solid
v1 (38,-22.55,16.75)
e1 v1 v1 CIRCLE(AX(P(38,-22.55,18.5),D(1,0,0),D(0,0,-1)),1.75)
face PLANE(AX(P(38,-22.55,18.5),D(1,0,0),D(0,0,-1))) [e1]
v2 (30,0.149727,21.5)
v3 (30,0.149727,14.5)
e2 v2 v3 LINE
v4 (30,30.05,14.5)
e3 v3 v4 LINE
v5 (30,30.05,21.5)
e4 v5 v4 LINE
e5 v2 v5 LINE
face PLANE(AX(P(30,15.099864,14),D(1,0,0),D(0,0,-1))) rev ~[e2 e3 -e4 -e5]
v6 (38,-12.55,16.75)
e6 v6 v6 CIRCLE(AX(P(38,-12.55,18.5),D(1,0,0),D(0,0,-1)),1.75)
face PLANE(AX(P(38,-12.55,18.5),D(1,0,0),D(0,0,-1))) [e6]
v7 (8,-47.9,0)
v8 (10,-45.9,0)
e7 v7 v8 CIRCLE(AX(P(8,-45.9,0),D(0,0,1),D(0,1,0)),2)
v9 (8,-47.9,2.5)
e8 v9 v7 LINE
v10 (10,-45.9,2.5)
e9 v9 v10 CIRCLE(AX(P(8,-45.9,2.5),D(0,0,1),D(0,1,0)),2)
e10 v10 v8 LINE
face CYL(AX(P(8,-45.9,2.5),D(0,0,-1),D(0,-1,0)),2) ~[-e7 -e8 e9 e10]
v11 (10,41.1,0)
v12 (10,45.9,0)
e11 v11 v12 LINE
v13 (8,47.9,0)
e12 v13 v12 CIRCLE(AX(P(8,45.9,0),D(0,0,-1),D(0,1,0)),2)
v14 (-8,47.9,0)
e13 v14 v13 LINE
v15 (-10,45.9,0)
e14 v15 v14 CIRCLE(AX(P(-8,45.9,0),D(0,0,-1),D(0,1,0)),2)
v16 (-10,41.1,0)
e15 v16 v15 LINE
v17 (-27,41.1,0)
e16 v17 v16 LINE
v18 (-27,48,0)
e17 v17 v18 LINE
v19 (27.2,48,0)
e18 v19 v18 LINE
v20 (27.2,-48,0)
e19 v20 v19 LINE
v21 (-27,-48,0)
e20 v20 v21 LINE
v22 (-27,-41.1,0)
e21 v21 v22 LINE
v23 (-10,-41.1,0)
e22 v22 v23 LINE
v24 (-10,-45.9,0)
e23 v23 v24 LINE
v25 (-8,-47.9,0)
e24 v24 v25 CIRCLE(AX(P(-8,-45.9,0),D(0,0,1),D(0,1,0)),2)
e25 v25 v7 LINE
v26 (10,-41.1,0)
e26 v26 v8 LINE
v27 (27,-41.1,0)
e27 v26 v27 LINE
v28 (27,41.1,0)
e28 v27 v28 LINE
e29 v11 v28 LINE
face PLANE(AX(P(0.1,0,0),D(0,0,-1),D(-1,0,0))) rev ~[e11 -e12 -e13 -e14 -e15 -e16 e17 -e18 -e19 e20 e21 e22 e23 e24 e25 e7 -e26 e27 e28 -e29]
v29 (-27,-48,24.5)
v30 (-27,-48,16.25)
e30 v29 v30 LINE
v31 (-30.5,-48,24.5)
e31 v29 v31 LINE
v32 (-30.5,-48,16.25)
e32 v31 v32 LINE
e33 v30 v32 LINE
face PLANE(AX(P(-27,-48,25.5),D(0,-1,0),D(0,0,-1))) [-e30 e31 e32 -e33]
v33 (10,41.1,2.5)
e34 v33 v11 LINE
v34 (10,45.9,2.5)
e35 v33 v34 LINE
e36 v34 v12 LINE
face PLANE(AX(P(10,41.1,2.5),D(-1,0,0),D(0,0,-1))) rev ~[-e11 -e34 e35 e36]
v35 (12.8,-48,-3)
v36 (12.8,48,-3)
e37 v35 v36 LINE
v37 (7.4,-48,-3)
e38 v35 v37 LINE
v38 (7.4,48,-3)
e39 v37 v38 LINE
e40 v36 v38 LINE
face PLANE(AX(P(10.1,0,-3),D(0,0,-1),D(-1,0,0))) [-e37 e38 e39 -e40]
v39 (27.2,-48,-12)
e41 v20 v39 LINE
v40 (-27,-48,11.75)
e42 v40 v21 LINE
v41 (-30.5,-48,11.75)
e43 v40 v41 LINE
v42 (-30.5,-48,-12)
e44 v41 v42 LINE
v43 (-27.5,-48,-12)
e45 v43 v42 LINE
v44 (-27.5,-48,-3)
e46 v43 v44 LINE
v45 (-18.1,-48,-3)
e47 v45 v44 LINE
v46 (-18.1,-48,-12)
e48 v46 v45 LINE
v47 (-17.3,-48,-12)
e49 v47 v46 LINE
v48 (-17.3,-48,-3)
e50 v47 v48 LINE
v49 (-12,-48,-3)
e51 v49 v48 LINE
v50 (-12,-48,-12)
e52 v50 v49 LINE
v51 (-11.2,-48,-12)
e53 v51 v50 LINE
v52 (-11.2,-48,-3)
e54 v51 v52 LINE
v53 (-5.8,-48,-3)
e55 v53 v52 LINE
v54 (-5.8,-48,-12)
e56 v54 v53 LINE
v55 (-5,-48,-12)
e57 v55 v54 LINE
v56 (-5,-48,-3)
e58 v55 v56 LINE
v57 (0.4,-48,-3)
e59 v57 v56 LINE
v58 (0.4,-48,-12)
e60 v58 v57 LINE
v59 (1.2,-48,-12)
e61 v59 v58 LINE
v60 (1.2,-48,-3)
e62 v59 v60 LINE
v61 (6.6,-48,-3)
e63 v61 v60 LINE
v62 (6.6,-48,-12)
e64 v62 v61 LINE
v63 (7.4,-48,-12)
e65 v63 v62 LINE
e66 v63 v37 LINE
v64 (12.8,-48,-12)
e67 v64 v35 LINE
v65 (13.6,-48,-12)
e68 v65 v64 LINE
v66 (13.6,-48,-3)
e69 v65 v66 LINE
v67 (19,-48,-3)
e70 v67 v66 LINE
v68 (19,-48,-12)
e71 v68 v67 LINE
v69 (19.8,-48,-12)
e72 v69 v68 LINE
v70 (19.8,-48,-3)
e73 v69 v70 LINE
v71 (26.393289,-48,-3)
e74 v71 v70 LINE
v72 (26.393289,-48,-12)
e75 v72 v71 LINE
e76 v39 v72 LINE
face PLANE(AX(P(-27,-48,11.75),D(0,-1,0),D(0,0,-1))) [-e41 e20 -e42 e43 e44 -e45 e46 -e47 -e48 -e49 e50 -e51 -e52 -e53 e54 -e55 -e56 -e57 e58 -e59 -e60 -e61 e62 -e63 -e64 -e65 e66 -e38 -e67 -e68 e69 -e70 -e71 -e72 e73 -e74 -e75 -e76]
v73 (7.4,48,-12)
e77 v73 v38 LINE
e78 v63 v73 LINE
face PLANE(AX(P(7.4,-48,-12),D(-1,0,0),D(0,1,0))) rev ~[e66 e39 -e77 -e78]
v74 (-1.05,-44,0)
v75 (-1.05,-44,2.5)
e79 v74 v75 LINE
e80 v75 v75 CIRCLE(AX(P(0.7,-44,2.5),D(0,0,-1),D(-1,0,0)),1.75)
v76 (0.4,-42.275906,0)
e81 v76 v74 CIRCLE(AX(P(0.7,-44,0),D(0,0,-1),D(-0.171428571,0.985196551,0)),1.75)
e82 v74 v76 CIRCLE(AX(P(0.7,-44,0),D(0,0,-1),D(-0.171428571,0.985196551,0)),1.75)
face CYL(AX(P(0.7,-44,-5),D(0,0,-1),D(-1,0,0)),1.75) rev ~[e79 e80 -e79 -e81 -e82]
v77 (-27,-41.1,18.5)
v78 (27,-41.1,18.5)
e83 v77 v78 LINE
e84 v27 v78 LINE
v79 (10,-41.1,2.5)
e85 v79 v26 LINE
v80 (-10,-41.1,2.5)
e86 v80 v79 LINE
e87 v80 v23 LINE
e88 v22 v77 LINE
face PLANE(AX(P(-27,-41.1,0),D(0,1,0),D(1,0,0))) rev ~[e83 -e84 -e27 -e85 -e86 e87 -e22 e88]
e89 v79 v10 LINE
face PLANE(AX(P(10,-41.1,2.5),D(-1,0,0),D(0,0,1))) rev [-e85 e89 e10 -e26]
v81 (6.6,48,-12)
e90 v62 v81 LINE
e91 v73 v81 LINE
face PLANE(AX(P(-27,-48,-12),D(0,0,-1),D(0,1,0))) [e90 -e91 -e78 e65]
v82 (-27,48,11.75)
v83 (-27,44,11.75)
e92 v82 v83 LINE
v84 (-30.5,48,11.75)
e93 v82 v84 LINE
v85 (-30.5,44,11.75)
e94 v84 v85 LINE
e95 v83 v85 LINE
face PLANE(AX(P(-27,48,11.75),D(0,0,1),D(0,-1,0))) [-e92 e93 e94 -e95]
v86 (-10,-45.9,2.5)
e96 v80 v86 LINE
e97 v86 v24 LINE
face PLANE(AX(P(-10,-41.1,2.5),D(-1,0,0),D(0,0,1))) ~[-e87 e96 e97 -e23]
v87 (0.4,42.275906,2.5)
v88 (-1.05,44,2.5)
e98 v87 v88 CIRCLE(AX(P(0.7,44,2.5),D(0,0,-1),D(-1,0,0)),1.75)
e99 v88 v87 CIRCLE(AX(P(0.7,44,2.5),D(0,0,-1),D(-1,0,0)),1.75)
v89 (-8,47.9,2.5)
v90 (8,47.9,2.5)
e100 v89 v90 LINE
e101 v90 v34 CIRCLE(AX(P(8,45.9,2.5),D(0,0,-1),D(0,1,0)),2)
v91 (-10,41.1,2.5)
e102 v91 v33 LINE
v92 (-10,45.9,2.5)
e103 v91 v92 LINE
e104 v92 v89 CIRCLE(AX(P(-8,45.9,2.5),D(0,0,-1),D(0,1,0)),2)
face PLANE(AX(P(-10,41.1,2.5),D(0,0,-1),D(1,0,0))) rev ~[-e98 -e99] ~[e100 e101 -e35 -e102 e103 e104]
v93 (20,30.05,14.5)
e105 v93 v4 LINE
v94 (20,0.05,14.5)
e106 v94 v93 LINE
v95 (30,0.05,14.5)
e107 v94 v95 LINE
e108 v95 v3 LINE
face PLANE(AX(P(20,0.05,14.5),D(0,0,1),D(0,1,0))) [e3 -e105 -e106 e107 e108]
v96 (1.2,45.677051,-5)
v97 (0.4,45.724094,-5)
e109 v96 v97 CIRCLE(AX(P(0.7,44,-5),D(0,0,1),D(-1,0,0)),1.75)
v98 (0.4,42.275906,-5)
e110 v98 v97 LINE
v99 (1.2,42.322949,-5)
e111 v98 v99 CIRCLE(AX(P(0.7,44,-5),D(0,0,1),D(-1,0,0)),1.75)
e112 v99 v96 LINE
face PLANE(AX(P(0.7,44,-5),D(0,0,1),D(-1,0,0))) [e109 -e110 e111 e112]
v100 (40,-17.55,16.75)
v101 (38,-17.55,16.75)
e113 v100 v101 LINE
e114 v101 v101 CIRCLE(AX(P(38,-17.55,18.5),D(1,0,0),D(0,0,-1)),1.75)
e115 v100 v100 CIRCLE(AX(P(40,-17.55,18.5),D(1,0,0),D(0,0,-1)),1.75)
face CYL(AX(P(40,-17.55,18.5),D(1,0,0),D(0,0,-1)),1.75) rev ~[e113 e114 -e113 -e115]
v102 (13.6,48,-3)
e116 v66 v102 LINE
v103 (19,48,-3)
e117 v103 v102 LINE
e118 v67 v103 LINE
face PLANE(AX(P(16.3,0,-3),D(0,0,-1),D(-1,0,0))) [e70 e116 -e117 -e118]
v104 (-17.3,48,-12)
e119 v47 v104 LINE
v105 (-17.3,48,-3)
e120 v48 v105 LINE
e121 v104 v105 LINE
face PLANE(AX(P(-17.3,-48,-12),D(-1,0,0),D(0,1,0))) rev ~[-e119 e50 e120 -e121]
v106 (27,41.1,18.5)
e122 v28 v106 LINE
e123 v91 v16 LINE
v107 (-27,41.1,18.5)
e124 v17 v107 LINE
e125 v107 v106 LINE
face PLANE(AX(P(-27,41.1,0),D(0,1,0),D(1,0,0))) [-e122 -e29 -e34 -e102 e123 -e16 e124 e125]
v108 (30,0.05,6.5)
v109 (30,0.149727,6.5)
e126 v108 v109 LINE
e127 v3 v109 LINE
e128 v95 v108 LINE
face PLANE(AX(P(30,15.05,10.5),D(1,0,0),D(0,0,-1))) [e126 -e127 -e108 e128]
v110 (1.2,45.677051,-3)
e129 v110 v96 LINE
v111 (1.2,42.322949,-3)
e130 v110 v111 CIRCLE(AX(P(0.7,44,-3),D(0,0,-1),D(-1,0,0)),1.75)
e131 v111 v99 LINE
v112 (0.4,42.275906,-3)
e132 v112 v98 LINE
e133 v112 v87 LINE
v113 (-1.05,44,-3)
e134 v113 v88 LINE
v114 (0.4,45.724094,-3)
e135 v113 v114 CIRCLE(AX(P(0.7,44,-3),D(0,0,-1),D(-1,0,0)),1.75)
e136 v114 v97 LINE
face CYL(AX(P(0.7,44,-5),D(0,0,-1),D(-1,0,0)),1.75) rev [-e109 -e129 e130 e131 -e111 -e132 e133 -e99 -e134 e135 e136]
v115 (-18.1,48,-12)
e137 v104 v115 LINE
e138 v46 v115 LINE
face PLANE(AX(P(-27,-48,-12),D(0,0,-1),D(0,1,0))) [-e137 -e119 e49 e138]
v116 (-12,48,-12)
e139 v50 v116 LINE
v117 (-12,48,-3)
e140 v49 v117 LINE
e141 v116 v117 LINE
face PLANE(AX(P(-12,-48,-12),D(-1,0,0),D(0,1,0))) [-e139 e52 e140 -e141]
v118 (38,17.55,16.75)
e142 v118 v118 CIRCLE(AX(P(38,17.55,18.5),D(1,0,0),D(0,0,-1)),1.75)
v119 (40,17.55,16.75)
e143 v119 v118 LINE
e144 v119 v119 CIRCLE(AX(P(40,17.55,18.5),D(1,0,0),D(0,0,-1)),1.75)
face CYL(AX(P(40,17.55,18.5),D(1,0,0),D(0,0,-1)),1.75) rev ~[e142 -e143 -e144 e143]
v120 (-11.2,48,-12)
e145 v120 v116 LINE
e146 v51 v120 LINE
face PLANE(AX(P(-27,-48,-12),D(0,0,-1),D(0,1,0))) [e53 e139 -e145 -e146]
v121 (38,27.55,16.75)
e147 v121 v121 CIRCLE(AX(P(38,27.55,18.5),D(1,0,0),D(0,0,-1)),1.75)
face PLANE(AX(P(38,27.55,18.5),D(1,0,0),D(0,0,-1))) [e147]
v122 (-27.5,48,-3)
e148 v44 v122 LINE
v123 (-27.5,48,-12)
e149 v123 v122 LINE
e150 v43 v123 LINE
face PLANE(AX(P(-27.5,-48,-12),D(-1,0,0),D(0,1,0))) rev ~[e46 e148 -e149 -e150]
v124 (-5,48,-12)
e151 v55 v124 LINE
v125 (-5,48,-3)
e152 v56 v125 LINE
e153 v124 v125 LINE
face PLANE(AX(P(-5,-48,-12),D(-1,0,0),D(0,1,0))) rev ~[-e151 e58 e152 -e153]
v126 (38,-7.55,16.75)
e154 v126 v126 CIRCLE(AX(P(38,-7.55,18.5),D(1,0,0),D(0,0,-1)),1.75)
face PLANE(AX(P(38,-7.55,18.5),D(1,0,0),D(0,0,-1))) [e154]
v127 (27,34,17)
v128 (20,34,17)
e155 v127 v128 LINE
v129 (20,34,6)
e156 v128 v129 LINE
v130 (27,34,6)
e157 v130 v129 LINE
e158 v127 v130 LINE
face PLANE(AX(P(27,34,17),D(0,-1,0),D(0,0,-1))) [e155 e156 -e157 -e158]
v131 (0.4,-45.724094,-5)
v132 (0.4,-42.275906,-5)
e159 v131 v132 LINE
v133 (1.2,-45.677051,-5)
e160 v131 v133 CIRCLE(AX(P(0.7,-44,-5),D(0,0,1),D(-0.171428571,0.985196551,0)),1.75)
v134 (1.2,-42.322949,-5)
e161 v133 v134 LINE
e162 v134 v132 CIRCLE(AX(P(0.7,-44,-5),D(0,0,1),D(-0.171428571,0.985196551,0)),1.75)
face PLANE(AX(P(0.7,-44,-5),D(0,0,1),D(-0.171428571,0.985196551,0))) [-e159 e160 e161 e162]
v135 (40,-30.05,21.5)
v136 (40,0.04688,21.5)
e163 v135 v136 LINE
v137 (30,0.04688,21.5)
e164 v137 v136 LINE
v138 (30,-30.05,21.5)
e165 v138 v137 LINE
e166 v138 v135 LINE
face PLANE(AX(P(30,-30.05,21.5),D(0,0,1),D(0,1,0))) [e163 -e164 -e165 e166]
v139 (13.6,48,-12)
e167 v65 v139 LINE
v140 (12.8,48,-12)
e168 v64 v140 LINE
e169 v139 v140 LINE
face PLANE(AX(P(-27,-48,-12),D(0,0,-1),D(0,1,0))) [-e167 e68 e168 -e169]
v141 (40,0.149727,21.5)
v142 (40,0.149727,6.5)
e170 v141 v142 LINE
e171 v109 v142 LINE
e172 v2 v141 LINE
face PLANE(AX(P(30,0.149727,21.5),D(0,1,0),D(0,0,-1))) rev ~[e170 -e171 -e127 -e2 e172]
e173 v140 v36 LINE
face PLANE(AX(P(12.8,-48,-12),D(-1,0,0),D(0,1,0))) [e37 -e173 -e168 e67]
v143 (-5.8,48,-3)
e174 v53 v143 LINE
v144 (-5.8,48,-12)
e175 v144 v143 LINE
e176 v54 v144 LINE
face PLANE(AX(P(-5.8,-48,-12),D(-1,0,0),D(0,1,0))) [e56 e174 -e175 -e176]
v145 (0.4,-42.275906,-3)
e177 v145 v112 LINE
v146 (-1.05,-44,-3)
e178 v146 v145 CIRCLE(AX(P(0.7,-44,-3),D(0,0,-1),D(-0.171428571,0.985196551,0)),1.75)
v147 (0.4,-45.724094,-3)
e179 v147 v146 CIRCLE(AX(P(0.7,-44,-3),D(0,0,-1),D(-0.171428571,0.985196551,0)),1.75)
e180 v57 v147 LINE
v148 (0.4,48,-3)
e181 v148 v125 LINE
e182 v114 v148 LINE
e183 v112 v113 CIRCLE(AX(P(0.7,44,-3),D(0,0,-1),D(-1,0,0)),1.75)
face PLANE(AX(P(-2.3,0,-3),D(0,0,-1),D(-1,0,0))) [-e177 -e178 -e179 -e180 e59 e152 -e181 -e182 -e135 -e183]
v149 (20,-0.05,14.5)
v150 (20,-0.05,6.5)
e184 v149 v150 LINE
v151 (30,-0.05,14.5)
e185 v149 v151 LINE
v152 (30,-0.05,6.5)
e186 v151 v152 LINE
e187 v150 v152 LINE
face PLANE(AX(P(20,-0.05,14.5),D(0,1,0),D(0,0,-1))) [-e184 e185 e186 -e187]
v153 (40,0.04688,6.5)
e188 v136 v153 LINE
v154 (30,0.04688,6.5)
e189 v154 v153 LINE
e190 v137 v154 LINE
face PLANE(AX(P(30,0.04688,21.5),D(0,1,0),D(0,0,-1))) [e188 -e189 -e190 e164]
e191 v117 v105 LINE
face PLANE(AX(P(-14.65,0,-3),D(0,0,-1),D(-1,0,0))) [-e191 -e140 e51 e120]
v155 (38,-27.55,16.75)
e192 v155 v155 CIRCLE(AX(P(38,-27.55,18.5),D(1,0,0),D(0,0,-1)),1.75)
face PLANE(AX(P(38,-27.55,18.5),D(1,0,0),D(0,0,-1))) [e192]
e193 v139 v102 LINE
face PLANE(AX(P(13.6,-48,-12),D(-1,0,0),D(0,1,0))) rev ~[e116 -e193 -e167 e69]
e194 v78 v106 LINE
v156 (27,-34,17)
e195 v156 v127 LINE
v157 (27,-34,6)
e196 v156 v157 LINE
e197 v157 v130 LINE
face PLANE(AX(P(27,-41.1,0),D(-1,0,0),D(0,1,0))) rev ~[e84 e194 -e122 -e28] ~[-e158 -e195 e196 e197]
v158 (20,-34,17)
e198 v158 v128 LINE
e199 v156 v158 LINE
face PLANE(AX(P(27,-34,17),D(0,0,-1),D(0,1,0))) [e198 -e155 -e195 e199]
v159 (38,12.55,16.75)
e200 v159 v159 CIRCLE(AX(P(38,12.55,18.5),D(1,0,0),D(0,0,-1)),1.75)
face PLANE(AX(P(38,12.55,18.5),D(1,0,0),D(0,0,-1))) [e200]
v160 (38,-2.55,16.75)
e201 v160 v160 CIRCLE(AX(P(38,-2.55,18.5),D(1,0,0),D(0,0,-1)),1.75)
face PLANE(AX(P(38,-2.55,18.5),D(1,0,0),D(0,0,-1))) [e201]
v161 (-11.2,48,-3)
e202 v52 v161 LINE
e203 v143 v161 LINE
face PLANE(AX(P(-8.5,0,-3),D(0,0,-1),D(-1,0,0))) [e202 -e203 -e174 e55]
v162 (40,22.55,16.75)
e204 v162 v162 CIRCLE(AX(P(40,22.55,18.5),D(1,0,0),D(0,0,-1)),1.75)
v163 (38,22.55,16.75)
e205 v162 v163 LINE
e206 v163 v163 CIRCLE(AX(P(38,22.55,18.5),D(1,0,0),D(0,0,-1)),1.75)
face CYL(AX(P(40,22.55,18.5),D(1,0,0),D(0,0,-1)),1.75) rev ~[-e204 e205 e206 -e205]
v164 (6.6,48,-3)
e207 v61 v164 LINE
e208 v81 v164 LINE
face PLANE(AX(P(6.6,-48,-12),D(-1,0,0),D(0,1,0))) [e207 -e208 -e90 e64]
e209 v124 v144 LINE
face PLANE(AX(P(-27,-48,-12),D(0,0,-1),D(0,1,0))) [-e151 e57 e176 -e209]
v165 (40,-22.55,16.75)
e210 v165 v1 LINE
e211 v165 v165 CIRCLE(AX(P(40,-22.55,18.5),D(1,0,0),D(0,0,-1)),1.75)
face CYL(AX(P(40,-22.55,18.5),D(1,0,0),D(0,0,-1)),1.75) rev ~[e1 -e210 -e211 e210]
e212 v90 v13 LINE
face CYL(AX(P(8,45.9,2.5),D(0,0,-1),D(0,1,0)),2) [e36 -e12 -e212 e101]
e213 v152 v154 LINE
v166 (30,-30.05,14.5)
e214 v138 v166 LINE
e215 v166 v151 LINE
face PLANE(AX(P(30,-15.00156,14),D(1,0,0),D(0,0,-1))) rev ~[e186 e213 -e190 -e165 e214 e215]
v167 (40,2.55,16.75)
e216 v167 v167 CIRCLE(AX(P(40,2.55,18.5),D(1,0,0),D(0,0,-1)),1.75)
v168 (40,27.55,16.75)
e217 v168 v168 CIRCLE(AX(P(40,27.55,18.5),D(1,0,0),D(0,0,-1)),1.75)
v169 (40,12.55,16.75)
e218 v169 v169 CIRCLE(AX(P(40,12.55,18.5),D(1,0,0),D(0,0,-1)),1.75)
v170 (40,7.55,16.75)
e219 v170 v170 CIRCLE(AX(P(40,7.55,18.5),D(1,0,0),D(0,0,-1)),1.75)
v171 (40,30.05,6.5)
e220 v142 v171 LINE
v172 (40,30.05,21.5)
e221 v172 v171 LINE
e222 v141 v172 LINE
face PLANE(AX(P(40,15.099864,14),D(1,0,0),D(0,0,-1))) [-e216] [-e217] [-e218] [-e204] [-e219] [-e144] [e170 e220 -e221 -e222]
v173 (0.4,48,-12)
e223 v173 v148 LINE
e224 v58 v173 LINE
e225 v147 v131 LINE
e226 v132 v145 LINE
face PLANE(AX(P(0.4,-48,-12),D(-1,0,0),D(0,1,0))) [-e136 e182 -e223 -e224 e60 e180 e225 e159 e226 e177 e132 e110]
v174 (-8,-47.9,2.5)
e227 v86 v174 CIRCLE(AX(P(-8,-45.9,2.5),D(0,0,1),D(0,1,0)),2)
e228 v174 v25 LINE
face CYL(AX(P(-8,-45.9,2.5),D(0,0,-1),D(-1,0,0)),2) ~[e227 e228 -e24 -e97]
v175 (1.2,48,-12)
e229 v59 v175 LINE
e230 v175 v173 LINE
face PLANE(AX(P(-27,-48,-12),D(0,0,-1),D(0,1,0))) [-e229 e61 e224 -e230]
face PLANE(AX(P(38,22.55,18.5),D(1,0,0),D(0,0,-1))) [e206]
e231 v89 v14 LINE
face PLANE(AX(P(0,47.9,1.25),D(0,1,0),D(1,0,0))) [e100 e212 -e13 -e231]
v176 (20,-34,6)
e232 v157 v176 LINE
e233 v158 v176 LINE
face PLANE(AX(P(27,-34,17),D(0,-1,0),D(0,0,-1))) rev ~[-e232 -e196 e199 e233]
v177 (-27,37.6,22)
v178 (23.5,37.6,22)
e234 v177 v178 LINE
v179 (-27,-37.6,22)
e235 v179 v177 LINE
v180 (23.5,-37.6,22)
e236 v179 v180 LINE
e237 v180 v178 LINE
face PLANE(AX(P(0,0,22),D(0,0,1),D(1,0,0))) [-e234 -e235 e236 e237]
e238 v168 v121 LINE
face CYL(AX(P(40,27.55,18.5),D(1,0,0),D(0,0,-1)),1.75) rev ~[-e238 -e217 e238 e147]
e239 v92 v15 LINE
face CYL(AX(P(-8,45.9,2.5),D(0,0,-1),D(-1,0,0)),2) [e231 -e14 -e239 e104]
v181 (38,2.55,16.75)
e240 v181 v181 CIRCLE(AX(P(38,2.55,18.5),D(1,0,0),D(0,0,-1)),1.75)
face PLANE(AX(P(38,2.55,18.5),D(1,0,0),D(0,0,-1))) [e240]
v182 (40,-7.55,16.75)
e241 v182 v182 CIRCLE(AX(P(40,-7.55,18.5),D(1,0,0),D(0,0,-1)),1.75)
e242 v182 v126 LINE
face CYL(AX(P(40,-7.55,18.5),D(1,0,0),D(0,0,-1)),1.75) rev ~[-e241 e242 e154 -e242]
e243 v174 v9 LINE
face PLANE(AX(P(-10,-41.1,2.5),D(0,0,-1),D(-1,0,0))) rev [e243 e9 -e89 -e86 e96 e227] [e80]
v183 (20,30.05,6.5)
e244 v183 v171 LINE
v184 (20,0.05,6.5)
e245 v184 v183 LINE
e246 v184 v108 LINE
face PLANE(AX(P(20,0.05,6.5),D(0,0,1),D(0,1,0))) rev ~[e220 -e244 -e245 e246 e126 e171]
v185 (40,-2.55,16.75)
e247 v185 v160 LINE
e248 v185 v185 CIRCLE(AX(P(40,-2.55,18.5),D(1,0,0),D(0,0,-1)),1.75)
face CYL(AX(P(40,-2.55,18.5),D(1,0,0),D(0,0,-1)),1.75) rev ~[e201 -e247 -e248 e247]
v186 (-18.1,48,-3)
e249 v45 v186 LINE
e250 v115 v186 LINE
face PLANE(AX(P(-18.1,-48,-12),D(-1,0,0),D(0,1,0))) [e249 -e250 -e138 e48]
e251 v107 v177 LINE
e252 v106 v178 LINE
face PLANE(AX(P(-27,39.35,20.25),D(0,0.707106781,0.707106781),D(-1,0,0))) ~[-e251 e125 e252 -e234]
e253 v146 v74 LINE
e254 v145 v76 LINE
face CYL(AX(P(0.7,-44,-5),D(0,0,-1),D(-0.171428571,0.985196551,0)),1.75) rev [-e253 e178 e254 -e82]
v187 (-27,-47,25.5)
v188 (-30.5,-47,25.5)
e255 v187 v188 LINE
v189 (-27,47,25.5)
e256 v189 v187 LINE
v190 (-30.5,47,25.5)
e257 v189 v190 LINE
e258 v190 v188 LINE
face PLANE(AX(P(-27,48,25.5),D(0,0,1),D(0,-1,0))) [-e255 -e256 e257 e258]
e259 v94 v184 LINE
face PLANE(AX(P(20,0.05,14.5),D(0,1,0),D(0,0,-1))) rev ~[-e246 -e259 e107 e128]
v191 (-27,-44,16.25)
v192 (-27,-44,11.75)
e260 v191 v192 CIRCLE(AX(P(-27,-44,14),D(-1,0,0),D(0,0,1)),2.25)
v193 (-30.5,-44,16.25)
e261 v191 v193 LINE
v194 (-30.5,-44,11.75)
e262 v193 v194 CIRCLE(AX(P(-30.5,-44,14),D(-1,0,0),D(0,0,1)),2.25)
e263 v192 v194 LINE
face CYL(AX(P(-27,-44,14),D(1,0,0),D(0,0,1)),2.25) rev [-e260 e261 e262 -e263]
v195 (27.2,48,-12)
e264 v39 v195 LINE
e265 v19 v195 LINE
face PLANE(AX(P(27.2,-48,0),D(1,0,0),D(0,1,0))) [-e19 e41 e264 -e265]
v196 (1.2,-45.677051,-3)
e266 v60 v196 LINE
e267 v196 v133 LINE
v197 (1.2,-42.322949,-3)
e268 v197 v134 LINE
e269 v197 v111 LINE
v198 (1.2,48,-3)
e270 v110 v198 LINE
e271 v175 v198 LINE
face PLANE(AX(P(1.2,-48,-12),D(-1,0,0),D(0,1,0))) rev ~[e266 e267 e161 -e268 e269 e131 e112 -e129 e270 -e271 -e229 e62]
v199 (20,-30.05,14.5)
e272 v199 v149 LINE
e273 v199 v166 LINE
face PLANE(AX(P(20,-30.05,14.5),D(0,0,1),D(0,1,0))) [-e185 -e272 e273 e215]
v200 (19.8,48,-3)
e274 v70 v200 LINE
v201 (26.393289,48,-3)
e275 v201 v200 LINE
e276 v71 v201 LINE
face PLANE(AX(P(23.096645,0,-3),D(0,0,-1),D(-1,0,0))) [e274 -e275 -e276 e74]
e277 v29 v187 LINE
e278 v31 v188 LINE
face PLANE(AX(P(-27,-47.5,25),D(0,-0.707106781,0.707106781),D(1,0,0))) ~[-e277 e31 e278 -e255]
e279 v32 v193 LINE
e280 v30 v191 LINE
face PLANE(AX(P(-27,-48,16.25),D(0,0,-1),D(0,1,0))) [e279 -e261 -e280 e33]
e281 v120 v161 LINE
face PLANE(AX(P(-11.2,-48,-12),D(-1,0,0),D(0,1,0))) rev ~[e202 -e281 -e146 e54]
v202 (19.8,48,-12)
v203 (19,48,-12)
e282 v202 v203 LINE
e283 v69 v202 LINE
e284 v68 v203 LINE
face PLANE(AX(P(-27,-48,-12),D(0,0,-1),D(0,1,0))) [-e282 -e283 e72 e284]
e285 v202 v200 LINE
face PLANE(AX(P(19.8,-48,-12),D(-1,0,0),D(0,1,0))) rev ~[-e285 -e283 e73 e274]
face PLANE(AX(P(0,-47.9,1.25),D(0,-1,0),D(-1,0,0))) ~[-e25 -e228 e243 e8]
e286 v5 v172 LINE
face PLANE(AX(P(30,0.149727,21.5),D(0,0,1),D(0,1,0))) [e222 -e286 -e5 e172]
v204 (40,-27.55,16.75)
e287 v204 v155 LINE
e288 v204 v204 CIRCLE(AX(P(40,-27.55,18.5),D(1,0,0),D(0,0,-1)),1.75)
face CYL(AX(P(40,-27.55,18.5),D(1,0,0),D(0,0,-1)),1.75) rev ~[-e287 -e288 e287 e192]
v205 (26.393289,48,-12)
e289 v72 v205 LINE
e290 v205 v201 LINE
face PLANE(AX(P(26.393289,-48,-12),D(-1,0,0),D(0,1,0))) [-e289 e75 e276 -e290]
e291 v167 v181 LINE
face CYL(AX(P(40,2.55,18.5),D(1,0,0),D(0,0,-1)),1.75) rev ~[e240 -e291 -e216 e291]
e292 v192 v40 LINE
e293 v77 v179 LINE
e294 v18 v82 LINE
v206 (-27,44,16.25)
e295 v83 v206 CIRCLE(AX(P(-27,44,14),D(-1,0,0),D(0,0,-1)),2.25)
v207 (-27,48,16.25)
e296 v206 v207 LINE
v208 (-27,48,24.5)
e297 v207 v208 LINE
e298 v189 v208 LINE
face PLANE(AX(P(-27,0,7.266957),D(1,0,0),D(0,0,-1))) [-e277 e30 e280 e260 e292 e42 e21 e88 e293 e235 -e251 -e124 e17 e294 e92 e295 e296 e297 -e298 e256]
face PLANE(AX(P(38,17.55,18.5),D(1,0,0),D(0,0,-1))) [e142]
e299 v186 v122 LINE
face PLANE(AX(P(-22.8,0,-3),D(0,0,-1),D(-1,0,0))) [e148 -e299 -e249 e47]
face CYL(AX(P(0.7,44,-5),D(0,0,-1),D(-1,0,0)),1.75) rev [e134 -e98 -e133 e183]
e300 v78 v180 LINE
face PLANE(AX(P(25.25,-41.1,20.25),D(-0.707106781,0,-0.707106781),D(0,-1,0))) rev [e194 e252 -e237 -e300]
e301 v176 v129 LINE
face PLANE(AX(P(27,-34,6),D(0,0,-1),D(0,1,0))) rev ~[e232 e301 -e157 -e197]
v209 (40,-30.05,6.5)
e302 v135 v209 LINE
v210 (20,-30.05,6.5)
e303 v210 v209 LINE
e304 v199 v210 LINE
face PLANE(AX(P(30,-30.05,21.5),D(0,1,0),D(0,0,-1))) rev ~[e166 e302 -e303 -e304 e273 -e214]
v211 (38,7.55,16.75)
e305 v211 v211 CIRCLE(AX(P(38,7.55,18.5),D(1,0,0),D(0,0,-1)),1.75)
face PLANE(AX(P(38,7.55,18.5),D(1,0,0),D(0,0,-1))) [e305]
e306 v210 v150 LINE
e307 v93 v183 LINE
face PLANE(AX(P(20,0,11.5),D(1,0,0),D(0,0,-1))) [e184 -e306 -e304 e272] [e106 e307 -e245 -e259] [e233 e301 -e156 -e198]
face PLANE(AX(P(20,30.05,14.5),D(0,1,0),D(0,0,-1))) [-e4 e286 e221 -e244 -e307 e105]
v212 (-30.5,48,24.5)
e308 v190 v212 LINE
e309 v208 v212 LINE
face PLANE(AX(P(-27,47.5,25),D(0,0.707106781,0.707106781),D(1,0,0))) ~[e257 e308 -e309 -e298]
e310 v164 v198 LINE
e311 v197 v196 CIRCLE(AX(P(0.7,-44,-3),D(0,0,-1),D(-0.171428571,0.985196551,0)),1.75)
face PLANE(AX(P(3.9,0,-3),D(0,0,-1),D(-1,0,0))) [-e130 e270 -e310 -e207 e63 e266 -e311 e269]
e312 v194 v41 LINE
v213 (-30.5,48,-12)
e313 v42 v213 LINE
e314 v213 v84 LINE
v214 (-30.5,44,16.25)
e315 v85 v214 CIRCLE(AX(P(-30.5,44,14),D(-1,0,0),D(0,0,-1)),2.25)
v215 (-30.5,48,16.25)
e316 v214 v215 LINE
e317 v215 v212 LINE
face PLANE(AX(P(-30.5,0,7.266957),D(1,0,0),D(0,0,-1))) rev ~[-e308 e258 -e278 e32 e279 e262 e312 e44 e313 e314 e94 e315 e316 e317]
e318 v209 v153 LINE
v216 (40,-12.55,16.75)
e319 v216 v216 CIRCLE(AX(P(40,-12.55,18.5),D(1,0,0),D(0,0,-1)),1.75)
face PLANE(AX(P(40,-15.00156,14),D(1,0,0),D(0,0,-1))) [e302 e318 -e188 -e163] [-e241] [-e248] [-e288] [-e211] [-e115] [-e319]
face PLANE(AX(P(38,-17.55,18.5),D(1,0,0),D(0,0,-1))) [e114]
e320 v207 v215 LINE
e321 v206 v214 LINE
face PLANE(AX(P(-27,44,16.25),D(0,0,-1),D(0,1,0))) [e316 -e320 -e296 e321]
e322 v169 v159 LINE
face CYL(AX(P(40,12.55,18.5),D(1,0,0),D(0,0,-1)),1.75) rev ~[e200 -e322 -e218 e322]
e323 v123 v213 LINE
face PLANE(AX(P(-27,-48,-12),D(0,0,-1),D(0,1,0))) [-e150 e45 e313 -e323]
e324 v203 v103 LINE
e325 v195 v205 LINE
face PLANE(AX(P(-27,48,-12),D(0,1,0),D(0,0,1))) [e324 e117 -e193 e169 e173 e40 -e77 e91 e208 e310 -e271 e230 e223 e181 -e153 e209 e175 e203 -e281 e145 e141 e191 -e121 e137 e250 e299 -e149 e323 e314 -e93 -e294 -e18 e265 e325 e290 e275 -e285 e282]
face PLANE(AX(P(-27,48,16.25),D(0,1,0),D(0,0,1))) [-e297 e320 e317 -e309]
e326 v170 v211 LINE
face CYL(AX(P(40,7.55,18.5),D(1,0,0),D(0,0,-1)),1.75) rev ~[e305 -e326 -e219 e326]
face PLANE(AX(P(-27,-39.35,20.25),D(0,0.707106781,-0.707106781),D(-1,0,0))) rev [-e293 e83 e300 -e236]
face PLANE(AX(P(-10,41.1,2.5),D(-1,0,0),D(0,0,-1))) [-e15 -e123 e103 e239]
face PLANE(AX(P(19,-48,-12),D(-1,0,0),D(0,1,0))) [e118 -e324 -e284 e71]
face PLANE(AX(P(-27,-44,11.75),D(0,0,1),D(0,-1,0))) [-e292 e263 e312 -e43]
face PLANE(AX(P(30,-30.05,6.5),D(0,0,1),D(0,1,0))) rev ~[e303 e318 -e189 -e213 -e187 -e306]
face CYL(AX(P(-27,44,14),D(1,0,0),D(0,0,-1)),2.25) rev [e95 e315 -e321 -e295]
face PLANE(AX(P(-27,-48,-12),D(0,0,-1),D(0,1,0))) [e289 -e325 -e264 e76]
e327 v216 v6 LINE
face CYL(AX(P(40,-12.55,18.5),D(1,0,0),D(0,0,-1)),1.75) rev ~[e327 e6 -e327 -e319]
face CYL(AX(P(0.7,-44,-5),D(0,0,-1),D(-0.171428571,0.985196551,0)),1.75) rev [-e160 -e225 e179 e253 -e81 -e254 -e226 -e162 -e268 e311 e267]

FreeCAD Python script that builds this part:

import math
import FreeCAD as App
import Part
import Sketcher
from FreeCAD import Vector


def edges_at(feature, points):
    """Names of the edges that pass closest to the given points."""
    edges = feature.Shape.Edges
    near = lambda p: min(range(len(edges)), key=lambda i: edges[i].distToShape(Part.Vertex(*p))[0])
    return sorted({f"Edge{near(p) + 1}" for p in points})

doc = App.newDocument("Part")
body = doc.addObject("PartDesign::Body", "Body")

# Sketch on XY plane
sketch1 = doc.addObject("Sketcher::SketchObject", "Sketch")
body.addObject(sketch1)
sketch1.AttachmentSupport = (doc.XY_Plane, [""])
sketch1.MapMode = "FlatFace"
sketch1.addGeometry([
    Part.LineSegment(Vector(-27, 41, 0), Vector(-27, -41, 0)),
    Part.LineSegment(Vector(-27, -41, 0), Vector(27, -41, 0)),
    Part.LineSegment(Vector(27, -41, 0), Vector(27, 41, 0)),
    Part.LineSegment(Vector(27, 41, 0), Vector(-27, 41, 0)),
], False)
sketch1.addConstraint([
    Sketcher.Constraint("Coincident", 0, 2, 1, 1),
    Sketcher.Constraint("Coincident", 1, 2, 2, 1),
    Sketcher.Constraint("Coincident", 2, 2, 3, 1),
    Sketcher.Constraint("Coincident", 3, 2, 0, 1),
    Sketcher.Constraint("Vertical", 0),
    Sketcher.Constraint("Horizontal", 1),
    Sketcher.Constraint("Vertical", 2),
    Sketcher.Constraint("Horizontal", 3),
    Sketcher.Constraint("Symmetric", 0, 2, 2, 2, -1, 1),
    Sketcher.Constraint("DistanceX", 1, 1, 1, 2, 54.0),
    Sketcher.Constraint("DistanceY", 0, 2, 0, 1, 82.2),
])
pad1 = doc.addObject("PartDesign::Pad", "Pad")
body.addObject(pad1)
pad1.Profile = sketch1
pad1.Length = 22
doc.recompute()

chamfer = doc.addObject("PartDesign::Chamfer", "Chamfer")
body.addObject(chamfer)
chamfer.Base = (pad1, edges_at(pad1, [(0, -41.1, 22), (27, 0, 22), (0, 41.1, 22)]))
chamfer.Size = 3.5

# Sketch on XY plane
sketch2 = doc.addObject("Sketcher::SketchObject", "Sketch001")
body.addObject(sketch2)
sketch2.AttachmentSupport = (doc.XY_Plane, [""])
sketch2.MapMode = "FlatFace"
sketch2.addGeometry([
    Part.LineSegment(Vector(27, 48, 0), Vector(27, -48, 0)),
    Part.LineSegment(Vector(27, -48, 0), Vector(-27, -48, 0)),
    Part.LineSegment(Vector(-27, -48, 0), Vector(-27, 48, 0)),
    Part.LineSegment(Vector(-27, 48, 0), Vector(27, 48, 0)),
], False)
sketch2.addConstraint([
    Sketcher.Constraint("Coincident", 0, 2, 1, 1),
    Sketcher.Constraint("Coincident", 1, 2, 2, 1),
    Sketcher.Constraint("Coincident", 2, 2, 3, 1),
    Sketcher.Constraint("Coincident", 3, 2, 0, 1),
    Sketcher.Constraint("Vertical", 0),
    Sketcher.Constraint("Horizontal", 1),
    Sketcher.Constraint("Vertical", 2),
    Sketcher.Constraint("Horizontal", 3),
    Sketcher.Constraint("DistanceY", 0, 2, 0, 1, 96.0),
    Sketcher.Constraint("DistanceX", 1, 2, 1, 1, 54.2),
    Sketcher.Constraint("DistanceY", 0, 2, -1, 1, 48.0),
    Sketcher.Constraint("DistanceX", 1, 2, -1, 1, 27.0),
])
pad2 = doc.addObject("PartDesign::Pad", "Pad001")
body.addObject(pad2)
pad2.Profile = sketch2
pad2.Length = 12
pad2.Reversed = True

# Sketch on YZ plane
sketch3 = doc.addObject("Sketcher::SketchObject", "Sketch002")
body.addObject(sketch3)
sketch3.AttachmentSupport = (doc.YZ_Plane, [""])
sketch3.MapMode = "FlatFace"
sketch3.AttachmentOffset = App.Placement(Vector(0, 0, -27), App.Rotation())
sketch3.addGeometry([
    Part.LineSegment(Vector(48, 11.8, 0), Vector(48, -12, 0)),  # 0
    Part.LineSegment(Vector(48, -12, 0), Vector(-48, -12, 0)),  # 1
    Part.LineSegment(Vector(-48, -12, 0), Vector(-48, 11.8, 0)),  # 2
    Part.LineSegment(Vector(-48, 11.8, 0), Vector(-44, 11.8, 0)),  # 3
    Part.ArcOfCircle(Part.Circle(Vector(-44, 14, 0), Vector(0, 0, 1), 2.2), math.radians(-90), math.radians(90)),  # 4
    Part.LineSegment(Vector(-44, 16.2, 0), Vector(-48, 16.2, 0)),  # 5
    Part.LineSegment(Vector(-48, 16.2, 0), Vector(-48, 25.5, 0)),  # 6
    Part.LineSegment(Vector(-48, 25.5, 0), Vector(48, 25.5, 0)),  # 7
    Part.LineSegment(Vector(48, 25.5, 0), Vector(48, 16.2, 0)),  # 8
    Part.LineSegment(Vector(48, 16.2, 0), Vector(44, 16.2, 0)),  # 9
    Part.ArcOfCircle(Part.Circle(Vector(44, 14, 0), Vector(0, 0, 1), 2.2), math.radians(90), math.radians(270)),  # 10
    Part.LineSegment(Vector(44, 11.8, 0), Vector(48, 11.8, 0)),  # 11
], False)
sketch3.addConstraint([
    Sketcher.Constraint("Coincident", 0, 2, 1, 1),
    Sketcher.Constraint("Coincident", 1, 2, 2, 1),
    Sketcher.Constraint("Coincident", 2, 2, 3, 1),
    Sketcher.Constraint("Tangent", 3, 2, 4, 1),
    Sketcher.Constraint("Tangent", 4, 2, 5, 1),
    Sketcher.Constraint("Coincident", 5, 2, 6, 1),
    Sketcher.Constraint("Coincident", 6, 2, 7, 1),
    Sketcher.Constraint("Coincident", 7, 2, 8, 1),
    Sketcher.Constraint("Coincident", 8, 2, 9, 1),
    Sketcher.Constraint("Tangent", 9, 2, 10, 1),
    Sketcher.Constraint("Tangent", 10, 2, 11, 1),
    Sketcher.Constraint("Coincident", 11, 2, 0, 1),
    Sketcher.Constraint("Vertical", 0),
    Sketcher.Constraint("Horizontal", 1),
    Sketcher.Constraint("Vertical", 2),
    Sketcher.Constraint("Horizontal", 3),
    Sketcher.Constraint("Horizontal", 5),
    Sketcher.Constraint("Vertical", 6),
    Sketcher.Constraint("Horizontal", 7),
    Sketcher.Constraint("Vertical", 8),
    Sketcher.Constraint("Horizontal", 9),
    Sketcher.Constraint("Horizontal", 11),
    Sketcher.Constraint("Equal", 4, 10),
    Sketcher.Constraint("Symmetric", 4, 3, 10, 3, -2),
    Sketcher.Constraint("Vertical", 2, 2, 5, 2),
    Sketcher.Constraint("Vertical", 0, 2, 7, 2),
    Sketcher.Constraint("Equal", 5, 9),
    Sketcher.Constraint("DistanceX", 1, 2, 1, 1, 96.0),
    Sketcher.Constraint("DistanceX", 3, 1, 3, 2, 4.0),
    Sketcher.Constraint("Radius", 4, 2.25),
    Sketcher.Constraint("DistanceY", -1, 1, 4, 3, 14.0),
    Sketcher.Constraint("DistanceY", 0, 2, -1, 1, 12.0),
    Sketcher.Constraint("DistanceY", 6, 1, 6, 2, 9.25),
])
pad3 = doc.addObject("PartDesign::Pad", "Pad002")
body.addObject(pad3)
pad3.Profile = sketch3
pad3.Length = 3.5
pad3.Reversed = True
doc.recompute()

chamfer2 = doc.addObject("PartDesign::Chamfer", "Chamfer001")
body.addObject(chamfer2)
chamfer2.Base = (pad3, edges_at(pad3, [(-28.75, -48, 25.5), (-28.75, 48, 25.5)]))
chamfer2.Size = 1

# Sketch on XY plane
sketch4 = doc.addObject("Sketcher::SketchObject", "Sketch003")
body.addObject(sketch4)
sketch4.AttachmentSupport = (doc.XY_Plane, [""])
sketch4.MapMode = "FlatFace"
sketch4.AttachmentOffset = App.Placement(Vector(0, 0, -12), App.Rotation())
sketch4.addGeometry([
    Part.LineSegment(Vector(-18, 48, 0), Vector(-18, -48, 0)),  # 0
    Part.LineSegment(Vector(-18, -48, 0), Vector(-28, -48, 0)),  # 1
    Part.LineSegment(Vector(-28, -48, 0), Vector(-28, 48, 0)),  # 2
    Part.LineSegment(Vector(-28, 48, 0), Vector(-18, 48, 0)),  # 3
    Part.LineSegment(Vector(-12, 48, 0), Vector(-12, -48, 0)),  # 4
    Part.LineSegment(Vector(-12, -48, 0), Vector(-17, -48, 0)),  # 5
    Part.LineSegment(Vector(-17, -48, 0), Vector(-17, 48, 0)),  # 6
    Part.LineSegment(Vector(-17, 48, 0), Vector(-12, 48, 0)),  # 7
    Part.LineSegment(Vector(-6, 48, 0), Vector(-6, -48, 0)),  # 8
    Part.LineSegment(Vector(-6, -48, 0), Vector(-11, -48, 0)),  # 9
    Part.LineSegment(Vector(-11, -48, 0), Vector(-11, 48, 0)),  # 10
    Part.LineSegment(Vector(-11, 48, 0), Vector(-6, 48, 0)),  # 11
    Part.LineSegment(Vector(0, 48, 0), Vector(0, -48, 0)),  # 12
    Part.LineSegment(Vector(0, -48, 0), Vector(-5, -48, 0)),  # 13
    Part.LineSegment(Vector(-5, -48, 0), Vector(-5, 48, 0)),  # 14
    Part.LineSegment(Vector(-5, 48, 0), Vector(0, 48, 0)),  # 15
    Part.LineSegment(Vector(7, 48, 0), Vector(7, -48, 0)),  # 16
    Part.LineSegment(Vector(7, -48, 0), Vector(1, -48, 0)),  # 17
    Part.LineSegment(Vector(1, -48, 0), Vector(1, 48, 0)),  # 18
    Part.LineSegment(Vector(1, 48, 0), Vector(7, 48, 0)),  # 19
    Part.LineSegment(Vector(13, 48, 0), Vector(13, -48, 0)),  # 20
    Part.LineSegment(Vector(13, -48, 0), Vector(7, -48, 0)),  # 21
    Part.LineSegment(Vector(7, -48, 0), Vector(7, 48, 0)),  # 22
    Part.LineSegment(Vector(7, 48, 0), Vector(13, 48, 0)),  # 23
    Part.LineSegment(Vector(19, 48, 0), Vector(19, -48, 0)),  # 24
    Part.LineSegment(Vector(19, -48, 0), Vector(14, -48, 0)),  # 25
    Part.LineSegment(Vector(14, -48, 0), Vector(14, 48, 0)),  # 26
    Part.LineSegment(Vector(14, 48, 0), Vector(19, 48, 0)),  # 27
    Part.LineSegment(Vector(26, 48, 0), Vector(26, -48, 0)),  # 28
    Part.LineSegment(Vector(26, -48, 0), Vector(20, -48, 0)),  # 29
    Part.LineSegment(Vector(20, -48, 0), Vector(20, 48, 0)),  # 30
    Part.LineSegment(Vector(20, 48, 0), Vector(26, 48, 0)),  # 31
], False)
sketch4.addConstraint([
    Sketcher.Constraint("Coincident", 0, 2, 1, 1),
    Sketcher.Constraint("Coincident", 1, 2, 2, 1),
    Sketcher.Constraint("Coincident", 2, 2, 3, 1),
    Sketcher.Constraint("Coincident", 3, 2, 0, 1),
    Sketcher.Constraint("Coincident", 4, 2, 5, 1),
    Sketcher.Constraint("Coincident", 5, 2, 6, 1),
    Sketcher.Constraint("Coincident", 6, 2, 7, 1),
    Sketcher.Constraint("Coincident", 7, 2, 4, 1),
    Sketcher.Constraint("Coincident", 8, 2, 9, 1),
    Sketcher.Constraint("Coincident", 9, 2, 10, 1),
    Sketcher.Constraint("Coincident", 10, 2, 11, 1),
    Sketcher.Constraint("Coincident", 11, 2, 8, 1),
    Sketcher.Constraint("Coincident", 12, 2, 13, 1),
    Sketcher.Constraint("Coincident", 13, 2, 14, 1),
    Sketcher.Constraint("Coincident", 14, 2, 15, 1),
    Sketcher.Constraint("Coincident", 15, 2, 12, 1),
    Sketcher.Constraint("Coincident", 16, 2, 17, 1),
    Sketcher.Constraint("Coincident", 17, 2, 18, 1),
    Sketcher.Constraint("Coincident", 18, 2, 19, 1),
    Sketcher.Constraint("Coincident", 19, 2, 16, 1),
    Sketcher.Constraint("Coincident", 20, 2, 21, 1),
    Sketcher.Constraint("Coincident", 21, 2, 22, 1),
    Sketcher.Constraint("Coincident", 22, 2, 23, 1),
    Sketcher.Constraint("Coincident", 23, 2, 20, 1),
    Sketcher.Constraint("Coincident", 24, 2, 25, 1),
    Sketcher.Constraint("Coincident", 25, 2, 26, 1),
    Sketcher.Constraint("Coincident", 26, 2, 27, 1),
    Sketcher.Constraint("Coincident", 27, 2, 24, 1),
    Sketcher.Constraint("Coincident", 28, 2, 29, 1),
    Sketcher.Constraint("Coincident", 29, 2, 30, 1),
    Sketcher.Constraint("Coincident", 30, 2, 31, 1),
    Sketcher.Constraint("Coincident", 31, 2, 28, 1),
    Sketcher.Constraint("Vertical", 0),
    Sketcher.Constraint("Horizontal", 1),
    Sketcher.Constraint("Vertical", 2),
    Sketcher.Constraint("Horizontal", 3),
    Sketcher.Constraint("Vertical", 4),
    Sketcher.Constraint("Horizontal", 5),
    Sketcher.Constraint("Vertical", 6),
    Sketcher.Constraint("Horizontal", 7),
    Sketcher.Constraint("Vertical", 8),
    Sketcher.Constraint("Horizontal", 9),
    Sketcher.Constraint("Vertical", 10),
    Sketcher.Constraint("Horizontal", 11),
    Sketcher.Constraint("Vertical", 12),
    Sketcher.Constraint("Horizontal", 13),
    Sketcher.Constraint("Vertical", 14),
    Sketcher.Constraint("Horizontal", 15),
    Sketcher.Constraint("Vertical", 16),
    Sketcher.Constraint("Horizontal", 17),
    Sketcher.Constraint("Vertical", 18),
    Sketcher.Constraint("Horizontal", 19),
    Sketcher.Constraint("Vertical", 20),
    Sketcher.Constraint("Horizontal", 21),
    Sketcher.Constraint("Vertical", 22),
    Sketcher.Constraint("Horizontal", 23),
    Sketcher.Constraint("Vertical", 24),
    Sketcher.Constraint("Horizontal", 25),
    Sketcher.Constraint("Vertical", 26),
    Sketcher.Constraint("Horizontal", 27),
    Sketcher.Constraint("Vertical", 28),
    Sketcher.Constraint("Horizontal", 29),
    Sketcher.Constraint("Vertical", 30),
    Sketcher.Constraint("Horizontal", 31),
    Sketcher.Constraint("Horizontal", 1, 2, 4, 2),
    Sketcher.Constraint("Horizontal", 3, 2, 6, 2),
    Sketcher.Constraint("Horizontal", 5, 2, 8, 2),
    Sketcher.Constraint("Horizontal", 7, 2, 10, 2),
    Sketcher.Constraint("Horizontal", 9, 2, 12, 2),
    Sketcher.Constraint("Horizontal", 11, 2, 14, 2),
    Sketcher.Constraint("Horizontal", 13, 2, 16, 2),
    Sketcher.Constraint("Horizontal", 15, 2, 18, 2),
    Sketcher.Constraint("Horizontal", 17, 2, 20, 2),
    Sketcher.Constraint("Horizontal", 19, 2, 22, 2),
    Sketcher.Constraint("Horizontal", 21, 2, 24, 2),
    Sketcher.Constraint("Horizontal", 23, 2, 26, 2),
    Sketcher.Constraint("Horizontal", 25, 2, 28, 2),
    Sketcher.Constraint("Horizontal", 27, 2, 30, 2),
    Sketcher.Constraint("Equal", 11, 13),
    Sketcher.Constraint("Equal", 15, 17),
    Sketcher.Constraint("Equal", 19, 21),
    Sketcher.Constraint("Equal", 23, 25),
    Sketcher.Constraint("DistanceY", 0, 2, 0, 1, 96.0),
    Sketcher.Constraint("DistanceX", 1, 2, 1, 1, 9.4),
    Sketcher.Constraint("DistanceX", 5, 2, 5, 1, 5.3),
    Sketcher.Constraint("DistanceX", 9, 2, 9, 1, 5.4),
    Sketcher.Constraint("DistanceY", 0, 2, -1, 1, 48.0),
    Sketcher.Constraint("DistanceX", 4, 2, -1, 1, 12.0),
    Sketcher.Constraint("DistanceX", 13, 2, -1, 1, 5.0),
    Sketcher.Constraint("DistanceX", -1, 1, 24, 2, 19.0),
    Sketcher.Constraint("DistanceX", 8, 2, 17, 2, 7.0),
    Sketcher.Constraint("DistanceX", 12, 2, 21, 2, 7.0),
    Sketcher.Constraint("DistanceX", 16, 2, 25, 2, 7.0),
    Sketcher.Constraint("DistanceX", 20, 2, 29, 2, 7.0),
    Sketcher.Constraint("DistanceX", 0, 2, -1, 1, 18.1),
    Sketcher.Constraint("DistanceX", 29, 2, 29, 1, 6.593289),
])
pocket1 = doc.addObject("PartDesign::Pocket", "Pocket")
body.addObject(pocket1)
pocket1.Profile = sketch4
pocket1.Length = 9
pocket1.Reversed = True

# Sketch on YZ plane
sketch5 = doc.addObject("Sketcher::SketchObject", "Sketch004")
body.addObject(sketch5)
sketch5.AttachmentSupport = (doc.YZ_Plane, [""])
sketch5.MapMode = "FlatFace"
sketch5.AttachmentOffset = App.Placement(Vector(0, 0, 27), App.Rotation())
sketch5.addGeometry([
    Part.LineSegment(Vector(34, 17, 0), Vector(-34, 17, 0)),
    Part.LineSegment(Vector(-34, 17, 0), Vector(-34, 6, 0)),
    Part.LineSegment(Vector(-34, 6, 0), Vector(34, 6, 0)),
    Part.LineSegment(Vector(34, 6, 0), Vector(34, 17, 0)),
], False)
sketch5.addConstraint([
    Sketcher.Constraint("Coincident", 0, 2, 1, 1),
    Sketcher.Constraint("Coincident", 1, 2, 2, 1),
    Sketcher.Constraint("Coincident", 2, 2, 3, 1),
    Sketcher.Constraint("Coincident", 3, 2, 0, 1),
    Sketcher.Constraint("Horizontal", 0),
    Sketcher.Constraint("Vertical", 1),
    Sketcher.Constraint("Horizontal", 2),
    Sketcher.Constraint("Vertical", 3),
    Sketcher.Constraint("DistanceX", 0, 2, 0, 1, 68.0),
    Sketcher.Constraint("DistanceY", 1, 2, 1, 1, 11.0),
    Sketcher.Constraint("DistanceX", 0, 2, -1, 1, 34.0),
    Sketcher.Constraint("DistanceY", -1, 1, 0, 2, 17.0),
])
pocket2 = doc.addObject("PartDesign::Pocket", "Pocket001")
body.addObject(pocket2)
pocket2.Profile = sketch5
pocket2.Length = 7

# Sketch on YZ plane
sketch6 = doc.addObject("Sketcher::SketchObject", "Sketch005")
body.addObject(sketch6)
sketch6.AttachmentSupport = (doc.YZ_Plane, [""])
sketch6.MapMode = "FlatFace"
sketch6.AttachmentOffset = App.Placement(Vector(0, 0, 20), App.Rotation())
sketch6.addGeometry([
    Part.LineSegment(Vector(-0.05, 14.5, 0), Vector(-30.05, 14.5, 0)),  # 0
    Part.LineSegment(Vector(-30.05, 14.5, 0), Vector(-30.05, 6.5, 0)),  # 1
    Part.LineSegment(Vector(-30.05, 6.5, 0), Vector(-0.05, 6.5, 0)),  # 2
    Part.LineSegment(Vector(-0.05, 6.5, 0), Vector(-0.05, 14.5, 0)),  # 3
    Part.LineSegment(Vector(30.05, 14.5, 0), Vector(0.05, 14.5, 0)),  # 4
    Part.LineSegment(Vector(0.05, 14.5, 0), Vector(0.05, 6.5, 0)),  # 5
    Part.LineSegment(Vector(0.05, 6.5, 0), Vector(30.05, 6.5, 0)),  # 6
    Part.LineSegment(Vector(30.05, 6.5, 0), Vector(30.05, 14.5, 0)),  # 7
], False)
sketch6.addConstraint([
    Sketcher.Constraint("Coincident", 0, 2, 1, 1),
    Sketcher.Constraint("Coincident", 1, 2, 2, 1),
    Sketcher.Constraint("Coincident", 2, 2, 3, 1),
    Sketcher.Constraint("Coincident", 3, 2, 0, 1),
    Sketcher.Constraint("Coincident", 4, 2, 5, 1),
    Sketcher.Constraint("Coincident", 5, 2, 6, 1),
    Sketcher.Constraint("Coincident", 6, 2, 7, 1),
    Sketcher.Constraint("Coincident", 7, 2, 4, 1),
    Sketcher.Constraint("Horizontal", 0),
    Sketcher.Constraint("Vertical", 1),
    Sketcher.Constraint("Horizontal", 2),
    Sketcher.Constraint("Vertical", 3),
    Sketcher.Constraint("Horizontal", 4),
    Sketcher.Constraint("Vertical", 5),
    Sketcher.Constraint("Horizontal", 6),
    Sketcher.Constraint("Vertical", 7),
    Sketcher.Constraint("Symmetric", 3, 2, 4, 2, -2),
    Sketcher.Constraint("Symmetric", 1, 2, 6, 2, -2),
    Sketcher.Constraint("DistanceX", 0, 2, 0, 1, 30.0),
    Sketcher.Constraint("DistanceY", 1, 2, 1, 1, 8.0),
    Sketcher.Constraint("DistanceY", -1, 1, 0, 2, 14.5),
    Sketcher.Constraint("DistanceX", 3, 2, 4, 2, 0.1),
])
pad4 = doc.addObject("PartDesign::Pad", "Pad003")
body.addObject(pad4)
pad4.Profile = sketch6
pad4.Length = 10

# Sketch on YZ plane
sketch7 = doc.addObject("Sketcher::SketchObject", "Sketch006")
body.addObject(sketch7)
sketch7.AttachmentSupport = (doc.YZ_Plane, [""])
sketch7.MapMode = "FlatFace"
sketch7.AttachmentOffset = App.Placement(Vector(0, 0, 30), App.Rotation())
sketch7.addGeometry([
    Part.LineSegment(Vector(0, 22, 0), Vector(-30, 22, 0)),  # 0
    Part.LineSegment(Vector(-30, 22, 0), Vector(-30, 6, 0)),  # 1
    Part.LineSegment(Vector(-30, 6, 0), Vector(0, 6, 0)),  # 2
    Part.LineSegment(Vector(0, 6, 0), Vector(0, 22, 0)),  # 3
    Part.LineSegment(Vector(30, 22, 0), Vector(0, 22, 0)),  # 4
    Part.LineSegment(Vector(0, 22, 0), Vector(0, 6, 0)),  # 5
    Part.LineSegment(Vector(0, 6, 0), Vector(30, 6, 0)),  # 6
    Part.LineSegment(Vector(30, 6, 0), Vector(30, 22, 0)),  # 7
], False)
sketch7.addConstraint([
    Sketcher.Constraint("Coincident", 0, 2, 1, 1),
    Sketcher.Constraint("Coincident", 1, 2, 2, 1),
    Sketcher.Constraint("Coincident", 2, 2, 3, 1),
    Sketcher.Constraint("Coincident", 3, 2, 0, 1),
    Sketcher.Constraint("Coincident", 4, 2, 5, 1),
    Sketcher.Constraint("Coincident", 5, 2, 6, 1),
    Sketcher.Constraint("Coincident", 6, 2, 7, 1),
    Sketcher.Constraint("Coincident", 7, 2, 4, 1),
    Sketcher.Constraint("Horizontal", 0),
    Sketcher.Constraint("Vertical", 1),
    Sketcher.Constraint("Horizontal", 2),
    Sketcher.Constraint("Vertical", 3),
    Sketcher.Constraint("Horizontal", 4),
    Sketcher.Constraint("Vertical", 5),
    Sketcher.Constraint("Horizontal", 6),
    Sketcher.Constraint("Vertical", 7),
    Sketcher.Constraint("Symmetric", 1, 2, 6, 2, -2),
    Sketcher.Constraint("Horizontal", 3, 2, 4, 2),
    Sketcher.Constraint("DistanceY", 1, 2, 1, 1, 15.0),
    Sketcher.Constraint("DistanceY", -1, 1, 0, 2, 21.5),
    Sketcher.Constraint("DistanceX", 1, 2, 6, 2, 60.1),
    Sketcher.Constraint("DistanceX", 0, 2, 0, 1, 30.09688),
    Sketcher.Constraint("DistanceX", 4, 2, 4, 1, 29.900273),
])
pad5 = doc.addObject("PartDesign::Pad", "Pad004")
body.addObject(pad5)
pad5.Profile = sketch7
pad5.Length = 10

# Sketch on YZ plane
sketch8 = doc.addObject("Sketcher::SketchObject", "Sketch007")
body.addObject(sketch8)
sketch8.AttachmentSupport = (doc.YZ_Plane, [""])
sketch8.MapMode = "FlatFace"
sketch8.AttachmentOffset = App.Placement(Vector(0, 0, 40), App.Rotation())
sketch8.addGeometry([
    Part.Circle(Vector(-27.6, 18.5, 0), Vector(0, 0, 1), 1.8),  # 0
    Part.Circle(Vector(-22.6, 18.5, 0), Vector(0, 0, 1), 1.8),  # 1
    Part.Circle(Vector(-17.6, 18.5, 0), Vector(0, 0, 1), 1.8),  # 2
    Part.Circle(Vector(-12.6, 18.5, 0), Vector(0, 0, 1), 1.8),  # 3
    Part.Circle(Vector(-7.5, 18.5, 0), Vector(0, 0, 1), 1.8),  # 4
    Part.Circle(Vector(-2.5, 18.5, 0), Vector(0, 0, 1), 1.8),  # 5
    Part.Circle(Vector(2.5, 18.5, 0), Vector(0, 0, 1), 1.8),  # 6
    Part.Circle(Vector(7.5, 18.5, 0), Vector(0, 0, 1), 1.8),  # 7
    Part.Circle(Vector(12.6, 18.5, 0), Vector(0, 0, 1), 1.8),  # 8
    Part.Circle(Vector(17.6, 18.5, 0), Vector(0, 0, 1), 1.8),  # 9
    Part.Circle(Vector(22.6, 18.5, 0), Vector(0, 0, 1), 1.8),  # 10
    Part.Circle(Vector(27.6, 18.5, 0), Vector(0, 0, 1), 1.8),  # 11
], False)
sketch8.addConstraint([
    Sketcher.Constraint("Equal", 0, 1),
    Sketcher.Constraint("Equal", 1, 2),
    Sketcher.Constraint("Equal", 2, 3),
    Sketcher.Constraint("Equal", 3, 4),
    Sketcher.Constraint("Equal", 4, 5),
    Sketcher.Constraint("Equal", 5, 6),
    Sketcher.Constraint("Equal", 6, 7),
    Sketcher.Constraint("Equal", 7, 8),
    Sketcher.Constraint("Equal", 8, 9),
    Sketcher.Constraint("Equal", 9, 10),
    Sketcher.Constraint("Equal", 10, 11),
    Sketcher.Constraint("Symmetric", 5, 3, 6, 3, -2),
    Sketcher.Constraint("Symmetric", 4, 3, 7, 3, -2),
    Sketcher.Constraint("Symmetric", 3, 3, 8, 3, -2),
    Sketcher.Constraint("Symmetric", 2, 3, 9, 3, -2),
    Sketcher.Constraint("Symmetric", 1, 3, 10, 3, -2),
    Sketcher.Constraint("Symmetric", 0, 3, 11, 3, -2),
    Sketcher.Constraint("Horizontal", 0, 3, 1, 3),
    Sketcher.Constraint("Horizontal", 1, 3, 2, 3),
    Sketcher.Constraint("Horizontal", 2, 3, 3, 3),
    Sketcher.Constraint("Horizontal", 3, 3, 4, 3),
    Sketcher.Constraint("Horizontal", 4, 3, 5, 3),
    Sketcher.Constraint("Diameter", 0, 3.5),
    Sketcher.Constraint("DistanceX", 0, 3, 1, 3, 5.0),
    Sketcher.Constraint("DistanceX", 1, 3, 2, 3, 5.0),
    Sketcher.Constraint("DistanceX", 2, 3, 3, 3, 5.0),
    Sketcher.Constraint("DistanceX", 3, 3, 4, 3, 5.0),
    Sketcher.Constraint("DistanceX", 4, 3, 5, 3, 5.0),
    Sketcher.Constraint("DistanceY", -1, 1, 0, 3, 18.5),
    Sketcher.Constraint("DistanceX", 5, 3, 6, 3, 5.1),
])
pocket3 = doc.addObject("PartDesign::Pocket", "Pocket002")
body.addObject(pocket3)
pocket3.Profile = sketch8
pocket3.Length = 2

# Sketch on XZ plane
sketch9 = doc.addObject("Sketcher::SketchObject", "Sketch008")
body.addObject(sketch9)
sketch9.AttachmentSupport = (doc.XZ_Plane, [""])
sketch9.MapMode = "FlatFace"
sketch9.AttachmentOffset = App.Placement(Vector(0, 0, -41.1), App.Rotation())
sketch9.addGeometry([
    Part.LineSegment(Vector(-10, 0, 0), Vector(-10, 2.5, 0)),
    Part.LineSegment(Vector(-10, 2.5, 0), Vector(10, 2.5, 0)),
    Part.LineSegment(Vector(10, 2.5, 0), Vector(10, 0, 0)),
    Part.LineSegment(Vector(10, 0, 0), Vector(-10, 0, 0)),
], False)
sketch9.addConstraint([
    Sketcher.Constraint("Coincident", 0, 2, 1, 1),
    Sketcher.Constraint("Coincident", 1, 2, 2, 1),
    Sketcher.Constraint("Coincident", 2, 2, 3, 1),
    Sketcher.Constraint("Coincident", 3, 2, 0, 1),
    Sketcher.Constraint("Vertical", 0),
    Sketcher.Constraint("Horizontal", 1),
    Sketcher.Constraint("Vertical", 2),
    Sketcher.Constraint("Horizontal", 3),
    Sketcher.Constraint("Symmetric", 2, 2, 3, 2, -1, 1),
    Sketcher.Constraint("DistanceX", 1, 1, 1, 2, 20.0),
    Sketcher.Constraint("DistanceY", 0, 1, 0, 2, 2.5),
])
pad6 = doc.addObject("PartDesign::Pad", "Pad005")
body.addObject(pad6)
pad6.Profile = sketch9
pad6.Length = 6.8
pad6.Reversed = True

# Sketch on XY plane
sketch10 = doc.addObject("Sketcher::SketchObject", "Sketch009")
body.addObject(sketch10)
sketch10.AttachmentSupport = (doc.XY_Plane, [""])
sketch10.MapMode = "FlatFace"
sketch10.AttachmentOffset = App.Placement(Vector(0, 0, -5), App.Rotation())
sketch10.addGeometry([
    Part.Circle(Vector(0.7, -44, 0), Vector(0, 0, 1), 1.8),
    Part.Circle(Vector(0.7, 44, 0), Vector(0, 0, 1), 1.8),
], False)
sketch10.addConstraint([
    Sketcher.Constraint("Equal", 0, 1),
    Sketcher.Constraint("Symmetric", 0, 3, 1, 3, -1),
    Sketcher.Constraint("Diameter", 0, 3.5),
    Sketcher.Constraint("DistanceY", 0, 3, -1, 1, 44.0),
    Sketcher.Constraint("DistanceX", -1, 1, 0, 3, 0.7),
])
pocket4 = doc.addObject("PartDesign::Pocket", "Pocket003")
body.addObject(pocket4)
pocket4.Profile = sketch10
pocket4.Length = 75.485184
pocket4.Reversed = True
doc.recompute()

fillet = doc.addObject("PartDesign::Fillet", "Fillet")
body.addObject(fillet)
fillet.Base = (pocket4, edges_at(pocket4, [(10, 47.9, 1.25), (-10, 47.9, 1.25)]))
fillet.Radius = 2
doc.recompute()

mirrored = doc.addObject("PartDesign::Mirrored", "Mirrored")
body.addObject(mirrored)
mirrored.Originals = [pad6, pocket4]
mirrored.MirrorPlane = (doc.XZ_Plane, [""])
body.Tip = mirrored
doc.recompute()

fillet2 = doc.addObject("PartDesign::Fillet", "Fillet001")
body.addObject(fillet2)
fillet2.Base = (mirrored, edges_at(mirrored, [(10, -47.9, 1.25), (-10, -47.9, 1.25)]))
fillet2.Radius = 2

doc.recompute()
